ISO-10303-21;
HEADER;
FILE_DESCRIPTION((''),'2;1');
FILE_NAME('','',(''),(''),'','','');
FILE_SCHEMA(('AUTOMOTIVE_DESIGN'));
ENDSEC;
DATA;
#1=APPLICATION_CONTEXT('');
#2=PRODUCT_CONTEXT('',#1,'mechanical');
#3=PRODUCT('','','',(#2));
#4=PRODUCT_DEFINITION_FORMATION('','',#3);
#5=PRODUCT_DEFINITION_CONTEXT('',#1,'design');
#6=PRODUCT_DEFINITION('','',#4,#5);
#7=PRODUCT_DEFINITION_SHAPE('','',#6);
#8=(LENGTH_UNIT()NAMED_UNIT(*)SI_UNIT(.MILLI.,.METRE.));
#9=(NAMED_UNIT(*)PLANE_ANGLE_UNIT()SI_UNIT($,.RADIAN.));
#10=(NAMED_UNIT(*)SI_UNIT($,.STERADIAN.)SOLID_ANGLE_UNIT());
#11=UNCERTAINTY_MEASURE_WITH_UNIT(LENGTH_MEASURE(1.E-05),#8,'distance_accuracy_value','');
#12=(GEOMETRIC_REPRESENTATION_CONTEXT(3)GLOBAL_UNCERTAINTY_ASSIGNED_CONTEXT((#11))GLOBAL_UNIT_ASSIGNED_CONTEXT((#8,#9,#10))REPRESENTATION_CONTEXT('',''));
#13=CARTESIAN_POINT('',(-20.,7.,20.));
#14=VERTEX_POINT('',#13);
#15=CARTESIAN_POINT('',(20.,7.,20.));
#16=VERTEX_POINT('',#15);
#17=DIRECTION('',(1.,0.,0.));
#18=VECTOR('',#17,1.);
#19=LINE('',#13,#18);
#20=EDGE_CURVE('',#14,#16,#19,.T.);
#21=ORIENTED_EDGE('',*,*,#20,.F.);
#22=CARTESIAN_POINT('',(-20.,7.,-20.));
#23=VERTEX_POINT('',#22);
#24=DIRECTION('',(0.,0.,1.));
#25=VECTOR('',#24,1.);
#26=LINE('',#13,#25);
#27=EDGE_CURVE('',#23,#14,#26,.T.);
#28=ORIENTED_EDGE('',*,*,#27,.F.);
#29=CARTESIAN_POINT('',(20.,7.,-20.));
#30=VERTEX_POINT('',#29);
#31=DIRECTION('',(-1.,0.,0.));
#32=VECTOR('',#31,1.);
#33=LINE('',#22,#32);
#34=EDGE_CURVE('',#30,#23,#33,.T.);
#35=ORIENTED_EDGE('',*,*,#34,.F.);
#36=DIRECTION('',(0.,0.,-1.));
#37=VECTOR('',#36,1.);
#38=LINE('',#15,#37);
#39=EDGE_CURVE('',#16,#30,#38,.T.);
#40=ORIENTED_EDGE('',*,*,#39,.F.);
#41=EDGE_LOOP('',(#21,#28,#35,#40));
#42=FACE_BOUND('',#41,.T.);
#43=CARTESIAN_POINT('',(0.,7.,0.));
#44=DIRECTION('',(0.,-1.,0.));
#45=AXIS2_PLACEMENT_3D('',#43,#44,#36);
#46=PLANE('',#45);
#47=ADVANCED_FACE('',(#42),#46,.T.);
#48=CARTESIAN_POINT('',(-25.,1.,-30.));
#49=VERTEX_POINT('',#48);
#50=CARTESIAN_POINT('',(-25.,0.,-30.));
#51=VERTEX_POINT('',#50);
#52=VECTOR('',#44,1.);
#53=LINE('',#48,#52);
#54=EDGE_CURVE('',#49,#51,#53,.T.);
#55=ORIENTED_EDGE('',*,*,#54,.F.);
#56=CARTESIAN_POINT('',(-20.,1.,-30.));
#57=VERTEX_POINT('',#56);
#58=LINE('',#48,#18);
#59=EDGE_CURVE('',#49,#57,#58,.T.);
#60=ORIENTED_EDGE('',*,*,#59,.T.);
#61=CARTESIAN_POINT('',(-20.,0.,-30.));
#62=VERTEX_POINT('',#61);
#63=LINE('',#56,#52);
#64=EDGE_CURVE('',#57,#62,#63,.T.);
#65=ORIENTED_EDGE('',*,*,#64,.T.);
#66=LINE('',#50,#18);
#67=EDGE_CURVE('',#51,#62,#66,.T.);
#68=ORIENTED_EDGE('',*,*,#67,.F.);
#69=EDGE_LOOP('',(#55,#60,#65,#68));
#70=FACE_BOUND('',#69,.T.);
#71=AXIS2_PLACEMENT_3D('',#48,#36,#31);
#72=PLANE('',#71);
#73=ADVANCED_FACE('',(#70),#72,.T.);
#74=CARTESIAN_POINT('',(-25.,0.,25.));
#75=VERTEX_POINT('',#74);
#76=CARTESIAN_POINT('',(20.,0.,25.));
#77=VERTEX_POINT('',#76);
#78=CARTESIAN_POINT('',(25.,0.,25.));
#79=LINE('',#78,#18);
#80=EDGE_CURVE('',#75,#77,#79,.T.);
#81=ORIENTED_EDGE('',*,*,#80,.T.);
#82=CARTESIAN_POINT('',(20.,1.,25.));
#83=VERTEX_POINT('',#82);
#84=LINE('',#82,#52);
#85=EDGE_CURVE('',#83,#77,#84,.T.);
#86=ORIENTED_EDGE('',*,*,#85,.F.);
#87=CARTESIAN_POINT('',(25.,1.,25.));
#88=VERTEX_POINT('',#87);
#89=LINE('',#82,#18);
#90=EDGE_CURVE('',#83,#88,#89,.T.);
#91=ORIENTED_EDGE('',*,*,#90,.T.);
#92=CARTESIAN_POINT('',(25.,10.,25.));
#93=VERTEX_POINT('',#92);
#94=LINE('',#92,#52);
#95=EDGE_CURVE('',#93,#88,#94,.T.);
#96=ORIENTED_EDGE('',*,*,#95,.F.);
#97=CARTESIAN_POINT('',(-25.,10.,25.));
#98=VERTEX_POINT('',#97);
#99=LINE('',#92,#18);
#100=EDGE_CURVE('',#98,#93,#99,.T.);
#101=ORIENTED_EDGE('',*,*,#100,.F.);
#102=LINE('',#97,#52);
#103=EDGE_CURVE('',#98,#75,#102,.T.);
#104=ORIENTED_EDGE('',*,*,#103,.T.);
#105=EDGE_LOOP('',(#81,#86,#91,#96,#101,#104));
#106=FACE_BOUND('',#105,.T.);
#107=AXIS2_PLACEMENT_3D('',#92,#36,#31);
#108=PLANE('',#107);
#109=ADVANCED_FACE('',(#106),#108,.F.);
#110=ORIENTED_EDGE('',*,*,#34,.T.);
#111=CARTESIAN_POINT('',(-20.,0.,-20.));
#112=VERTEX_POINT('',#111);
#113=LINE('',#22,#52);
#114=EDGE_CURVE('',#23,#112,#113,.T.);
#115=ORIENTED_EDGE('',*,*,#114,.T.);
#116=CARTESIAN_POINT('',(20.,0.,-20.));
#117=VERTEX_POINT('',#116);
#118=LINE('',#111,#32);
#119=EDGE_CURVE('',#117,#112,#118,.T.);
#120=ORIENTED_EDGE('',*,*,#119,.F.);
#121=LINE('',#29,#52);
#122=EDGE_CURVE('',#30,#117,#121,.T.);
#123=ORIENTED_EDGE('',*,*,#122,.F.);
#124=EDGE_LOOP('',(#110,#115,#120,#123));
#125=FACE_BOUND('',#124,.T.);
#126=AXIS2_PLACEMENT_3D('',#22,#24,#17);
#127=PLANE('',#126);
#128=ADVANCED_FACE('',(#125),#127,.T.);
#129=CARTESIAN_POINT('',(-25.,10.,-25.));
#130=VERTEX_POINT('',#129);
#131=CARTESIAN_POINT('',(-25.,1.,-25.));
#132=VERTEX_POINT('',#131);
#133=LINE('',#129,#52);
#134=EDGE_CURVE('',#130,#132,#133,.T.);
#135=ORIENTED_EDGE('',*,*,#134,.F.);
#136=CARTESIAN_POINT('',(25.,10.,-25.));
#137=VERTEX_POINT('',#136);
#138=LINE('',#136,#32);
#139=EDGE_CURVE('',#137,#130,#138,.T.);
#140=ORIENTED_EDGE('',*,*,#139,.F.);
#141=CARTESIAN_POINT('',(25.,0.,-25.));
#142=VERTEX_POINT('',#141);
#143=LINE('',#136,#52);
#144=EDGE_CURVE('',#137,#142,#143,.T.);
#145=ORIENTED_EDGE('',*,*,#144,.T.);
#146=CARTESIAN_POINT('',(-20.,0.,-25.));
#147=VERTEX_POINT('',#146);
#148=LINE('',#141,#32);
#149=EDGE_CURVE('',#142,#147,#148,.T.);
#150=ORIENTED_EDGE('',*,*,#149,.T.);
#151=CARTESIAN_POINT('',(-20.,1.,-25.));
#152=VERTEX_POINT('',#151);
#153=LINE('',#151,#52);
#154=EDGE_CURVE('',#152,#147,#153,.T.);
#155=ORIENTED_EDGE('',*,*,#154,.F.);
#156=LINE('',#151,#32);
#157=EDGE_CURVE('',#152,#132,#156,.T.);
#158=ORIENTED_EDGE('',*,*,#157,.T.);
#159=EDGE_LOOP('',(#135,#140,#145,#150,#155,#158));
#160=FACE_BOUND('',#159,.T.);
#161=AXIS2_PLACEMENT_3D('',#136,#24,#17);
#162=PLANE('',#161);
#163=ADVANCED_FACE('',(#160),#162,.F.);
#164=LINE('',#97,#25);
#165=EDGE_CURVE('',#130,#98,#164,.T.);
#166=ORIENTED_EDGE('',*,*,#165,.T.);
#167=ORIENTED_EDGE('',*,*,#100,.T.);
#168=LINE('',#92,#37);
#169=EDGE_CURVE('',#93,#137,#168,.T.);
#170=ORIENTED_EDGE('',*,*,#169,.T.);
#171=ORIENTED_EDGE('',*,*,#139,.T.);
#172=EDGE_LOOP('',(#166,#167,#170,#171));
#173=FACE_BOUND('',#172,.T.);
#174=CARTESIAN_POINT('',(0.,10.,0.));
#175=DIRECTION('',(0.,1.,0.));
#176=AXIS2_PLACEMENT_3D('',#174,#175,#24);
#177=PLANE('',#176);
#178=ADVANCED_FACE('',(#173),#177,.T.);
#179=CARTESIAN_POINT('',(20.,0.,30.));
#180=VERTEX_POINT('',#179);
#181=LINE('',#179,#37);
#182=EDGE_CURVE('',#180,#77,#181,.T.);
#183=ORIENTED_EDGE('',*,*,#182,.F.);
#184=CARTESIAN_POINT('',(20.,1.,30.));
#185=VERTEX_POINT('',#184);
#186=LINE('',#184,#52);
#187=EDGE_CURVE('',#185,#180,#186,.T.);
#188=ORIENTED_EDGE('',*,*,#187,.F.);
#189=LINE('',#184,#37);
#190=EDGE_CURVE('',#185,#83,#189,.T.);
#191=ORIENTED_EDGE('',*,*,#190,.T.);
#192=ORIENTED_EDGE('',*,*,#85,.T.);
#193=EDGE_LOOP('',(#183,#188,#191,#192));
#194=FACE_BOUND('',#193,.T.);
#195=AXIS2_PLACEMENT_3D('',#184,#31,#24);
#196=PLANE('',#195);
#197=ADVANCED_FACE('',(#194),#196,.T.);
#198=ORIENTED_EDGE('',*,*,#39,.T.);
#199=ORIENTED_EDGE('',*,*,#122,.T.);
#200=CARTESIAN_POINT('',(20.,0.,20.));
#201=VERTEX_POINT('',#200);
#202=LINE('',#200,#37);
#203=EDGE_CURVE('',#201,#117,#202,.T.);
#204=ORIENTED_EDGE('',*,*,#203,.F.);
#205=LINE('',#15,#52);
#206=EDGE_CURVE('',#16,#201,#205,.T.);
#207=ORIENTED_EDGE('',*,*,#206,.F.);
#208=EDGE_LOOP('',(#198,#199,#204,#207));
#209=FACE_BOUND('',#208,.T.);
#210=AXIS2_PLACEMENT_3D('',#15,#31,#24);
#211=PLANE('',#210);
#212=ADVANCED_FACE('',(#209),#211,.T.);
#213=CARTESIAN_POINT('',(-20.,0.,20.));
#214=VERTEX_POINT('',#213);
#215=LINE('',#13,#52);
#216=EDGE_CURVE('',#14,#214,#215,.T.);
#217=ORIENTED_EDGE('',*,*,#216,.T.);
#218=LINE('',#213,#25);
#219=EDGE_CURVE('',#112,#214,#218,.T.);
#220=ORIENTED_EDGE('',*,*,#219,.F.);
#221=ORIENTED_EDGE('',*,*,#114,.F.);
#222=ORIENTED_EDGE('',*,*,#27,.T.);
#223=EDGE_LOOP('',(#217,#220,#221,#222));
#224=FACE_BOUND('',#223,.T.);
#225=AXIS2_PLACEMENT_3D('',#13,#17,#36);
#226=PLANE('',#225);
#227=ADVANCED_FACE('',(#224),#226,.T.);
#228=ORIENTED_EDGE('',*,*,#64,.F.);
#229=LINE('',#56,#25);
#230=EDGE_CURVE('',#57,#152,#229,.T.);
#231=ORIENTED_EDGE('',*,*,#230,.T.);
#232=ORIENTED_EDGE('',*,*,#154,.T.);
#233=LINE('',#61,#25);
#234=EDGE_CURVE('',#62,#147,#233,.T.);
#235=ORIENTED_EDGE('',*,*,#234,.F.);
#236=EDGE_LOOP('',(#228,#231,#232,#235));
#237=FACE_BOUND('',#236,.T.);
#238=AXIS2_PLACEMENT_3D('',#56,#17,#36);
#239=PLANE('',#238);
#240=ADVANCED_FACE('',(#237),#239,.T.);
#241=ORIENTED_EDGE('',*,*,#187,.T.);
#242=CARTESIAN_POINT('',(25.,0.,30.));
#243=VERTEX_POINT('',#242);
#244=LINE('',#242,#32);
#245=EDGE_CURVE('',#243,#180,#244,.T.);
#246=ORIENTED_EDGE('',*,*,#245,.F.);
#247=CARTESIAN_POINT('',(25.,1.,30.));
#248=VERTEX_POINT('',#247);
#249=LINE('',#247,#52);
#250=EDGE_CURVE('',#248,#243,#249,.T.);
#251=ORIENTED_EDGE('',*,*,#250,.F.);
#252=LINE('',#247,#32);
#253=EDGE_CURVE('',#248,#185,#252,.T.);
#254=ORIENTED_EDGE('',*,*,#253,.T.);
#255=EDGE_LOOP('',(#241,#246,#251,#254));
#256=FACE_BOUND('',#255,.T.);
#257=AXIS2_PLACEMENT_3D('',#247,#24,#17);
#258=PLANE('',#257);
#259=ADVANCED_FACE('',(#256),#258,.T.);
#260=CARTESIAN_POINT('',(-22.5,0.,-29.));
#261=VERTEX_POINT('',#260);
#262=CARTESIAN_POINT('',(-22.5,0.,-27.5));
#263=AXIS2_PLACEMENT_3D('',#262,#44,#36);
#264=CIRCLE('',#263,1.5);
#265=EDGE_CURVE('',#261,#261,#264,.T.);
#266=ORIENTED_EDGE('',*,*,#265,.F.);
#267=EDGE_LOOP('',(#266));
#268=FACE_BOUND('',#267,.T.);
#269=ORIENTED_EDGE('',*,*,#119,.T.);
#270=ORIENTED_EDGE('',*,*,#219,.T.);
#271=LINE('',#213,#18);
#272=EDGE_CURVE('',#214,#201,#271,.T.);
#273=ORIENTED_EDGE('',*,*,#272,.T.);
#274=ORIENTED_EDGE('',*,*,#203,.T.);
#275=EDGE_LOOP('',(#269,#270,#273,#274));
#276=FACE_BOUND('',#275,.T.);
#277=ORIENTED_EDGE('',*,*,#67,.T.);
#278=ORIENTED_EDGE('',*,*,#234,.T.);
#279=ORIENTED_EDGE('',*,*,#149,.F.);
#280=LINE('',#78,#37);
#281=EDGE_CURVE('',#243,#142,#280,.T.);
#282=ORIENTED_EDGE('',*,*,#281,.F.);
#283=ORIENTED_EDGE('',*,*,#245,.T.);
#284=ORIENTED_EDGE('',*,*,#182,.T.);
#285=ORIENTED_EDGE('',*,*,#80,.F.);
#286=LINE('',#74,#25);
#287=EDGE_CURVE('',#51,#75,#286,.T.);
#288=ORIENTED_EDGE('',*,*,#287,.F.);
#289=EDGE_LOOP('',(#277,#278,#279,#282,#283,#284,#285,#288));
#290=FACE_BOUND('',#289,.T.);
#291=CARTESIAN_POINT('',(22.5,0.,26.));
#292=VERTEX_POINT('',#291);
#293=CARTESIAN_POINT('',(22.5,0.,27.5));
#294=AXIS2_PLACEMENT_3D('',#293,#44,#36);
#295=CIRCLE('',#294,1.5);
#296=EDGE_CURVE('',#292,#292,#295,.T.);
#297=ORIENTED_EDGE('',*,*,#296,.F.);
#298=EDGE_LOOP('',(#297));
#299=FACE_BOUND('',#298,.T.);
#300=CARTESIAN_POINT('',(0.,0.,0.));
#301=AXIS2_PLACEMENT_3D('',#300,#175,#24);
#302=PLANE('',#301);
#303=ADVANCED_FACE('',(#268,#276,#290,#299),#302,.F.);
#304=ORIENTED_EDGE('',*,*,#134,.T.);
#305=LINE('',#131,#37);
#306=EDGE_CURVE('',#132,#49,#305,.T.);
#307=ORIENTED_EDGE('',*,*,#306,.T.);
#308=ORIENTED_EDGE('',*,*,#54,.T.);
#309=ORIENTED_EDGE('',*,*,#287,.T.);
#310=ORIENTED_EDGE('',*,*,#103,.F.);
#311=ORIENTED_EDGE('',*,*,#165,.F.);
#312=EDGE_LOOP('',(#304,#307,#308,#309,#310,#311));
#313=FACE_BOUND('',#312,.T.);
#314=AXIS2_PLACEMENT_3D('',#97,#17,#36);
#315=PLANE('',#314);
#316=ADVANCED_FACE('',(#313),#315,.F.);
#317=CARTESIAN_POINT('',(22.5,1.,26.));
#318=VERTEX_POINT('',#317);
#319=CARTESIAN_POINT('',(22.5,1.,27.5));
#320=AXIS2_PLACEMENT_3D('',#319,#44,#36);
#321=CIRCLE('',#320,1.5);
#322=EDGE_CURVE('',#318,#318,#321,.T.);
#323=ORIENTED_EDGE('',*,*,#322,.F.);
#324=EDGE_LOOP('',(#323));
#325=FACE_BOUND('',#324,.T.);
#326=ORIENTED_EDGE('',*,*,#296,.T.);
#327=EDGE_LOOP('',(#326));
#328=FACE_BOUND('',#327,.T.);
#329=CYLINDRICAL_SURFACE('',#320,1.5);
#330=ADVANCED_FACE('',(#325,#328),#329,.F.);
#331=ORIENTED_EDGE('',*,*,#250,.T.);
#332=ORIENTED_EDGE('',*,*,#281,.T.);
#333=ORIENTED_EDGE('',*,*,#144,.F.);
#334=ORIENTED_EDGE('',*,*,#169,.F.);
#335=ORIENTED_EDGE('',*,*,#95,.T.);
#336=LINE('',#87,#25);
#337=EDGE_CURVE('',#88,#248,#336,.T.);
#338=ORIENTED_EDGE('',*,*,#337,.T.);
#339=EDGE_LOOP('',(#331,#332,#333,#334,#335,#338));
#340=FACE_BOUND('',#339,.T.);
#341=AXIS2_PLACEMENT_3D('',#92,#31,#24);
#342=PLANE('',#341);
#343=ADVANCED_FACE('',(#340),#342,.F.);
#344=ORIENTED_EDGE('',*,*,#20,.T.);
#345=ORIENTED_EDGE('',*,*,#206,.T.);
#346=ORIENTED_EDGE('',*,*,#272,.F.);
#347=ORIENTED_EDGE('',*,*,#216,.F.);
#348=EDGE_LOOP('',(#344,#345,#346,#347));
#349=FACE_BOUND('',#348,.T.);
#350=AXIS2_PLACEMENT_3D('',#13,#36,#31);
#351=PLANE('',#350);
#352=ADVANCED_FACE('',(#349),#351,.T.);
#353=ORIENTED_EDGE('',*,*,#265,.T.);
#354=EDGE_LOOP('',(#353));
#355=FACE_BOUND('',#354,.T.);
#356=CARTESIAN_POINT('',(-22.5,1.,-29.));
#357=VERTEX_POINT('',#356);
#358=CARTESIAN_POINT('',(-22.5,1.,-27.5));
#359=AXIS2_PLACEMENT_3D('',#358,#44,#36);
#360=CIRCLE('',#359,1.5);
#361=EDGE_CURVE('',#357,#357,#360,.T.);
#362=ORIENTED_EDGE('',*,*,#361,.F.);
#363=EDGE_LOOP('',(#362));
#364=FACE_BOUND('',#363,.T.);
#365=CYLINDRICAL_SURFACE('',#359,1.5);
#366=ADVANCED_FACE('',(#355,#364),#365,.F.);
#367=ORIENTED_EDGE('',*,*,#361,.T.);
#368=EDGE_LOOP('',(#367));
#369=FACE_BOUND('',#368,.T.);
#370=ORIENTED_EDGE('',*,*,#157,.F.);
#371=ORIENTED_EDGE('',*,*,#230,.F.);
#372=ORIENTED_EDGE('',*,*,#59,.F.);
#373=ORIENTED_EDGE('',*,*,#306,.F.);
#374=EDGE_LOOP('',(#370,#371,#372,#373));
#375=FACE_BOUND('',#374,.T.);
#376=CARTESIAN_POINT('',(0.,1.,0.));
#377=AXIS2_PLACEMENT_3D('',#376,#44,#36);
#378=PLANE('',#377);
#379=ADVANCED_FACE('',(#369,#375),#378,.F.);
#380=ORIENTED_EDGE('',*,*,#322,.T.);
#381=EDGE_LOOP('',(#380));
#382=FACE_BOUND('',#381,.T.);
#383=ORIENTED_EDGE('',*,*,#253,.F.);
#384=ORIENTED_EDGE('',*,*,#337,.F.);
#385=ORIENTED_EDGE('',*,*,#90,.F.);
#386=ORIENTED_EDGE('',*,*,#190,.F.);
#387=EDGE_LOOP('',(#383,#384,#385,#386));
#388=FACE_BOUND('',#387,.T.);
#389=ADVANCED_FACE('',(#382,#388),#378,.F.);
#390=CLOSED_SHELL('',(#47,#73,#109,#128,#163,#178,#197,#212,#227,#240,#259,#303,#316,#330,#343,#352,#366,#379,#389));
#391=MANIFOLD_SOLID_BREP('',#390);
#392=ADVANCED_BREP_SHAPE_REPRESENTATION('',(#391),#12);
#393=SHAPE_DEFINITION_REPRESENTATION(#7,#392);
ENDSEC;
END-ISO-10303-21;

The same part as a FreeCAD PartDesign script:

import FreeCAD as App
import Part
import Sketcher

doc = App.newDocument("Part")
params = doc.addObject("Spreadsheet::Sheet", "Params")
for row, (alias, value) in enumerate([
    ("sketch1_width", "50 mm"),
    ("pad1_length", "10 mm"),
    ("sketch2_width", "40 mm"),
    ("pocket1_length", "7 mm"),
    ("sketch3_diameter", "3 mm"),
    ("sketch3_width", "5 mm"),
    ("pad2_length", "1 mm"),
], start=1):
    params.set(f"A{row}", alias)
    params.set(f"B{row}", "=" + value)
    params.setAlias(f"B{row}", alias)

body = doc.addObject("PartDesign::Body", "Body")

sketch1 = body.newObject("Sketcher::SketchObject", "Sketch")
sketch1.AttachmentSupport = (doc.getObject("XZ_Plane"), [""])
sketch1.MapMode = "FlatFace"
sketch1.addGeometry(Part.LineSegment(App.Vector(-25, -25, 0), App.Vector(-25, 25, 0)), False)
sketch1.addGeometry(Part.LineSegment(App.Vector(-25, 25, 0), App.Vector(25, 25, 0)), False)
sketch1.addGeometry(Part.LineSegment(App.Vector(25, 25, 0), App.Vector(25, -25, 0)), False)
sketch1.addGeometry(Part.LineSegment(App.Vector(25, -25, 0), App.Vector(-25, -25, 0)), False)
sketch1.addConstraint(Sketcher.Constraint("Coincident", 0, 2, 1, 1))
sketch1.addConstraint(Sketcher.Constraint("Coincident", 1, 2, 2, 1))
sketch1.addConstraint(Sketcher.Constraint("Coincident", 2, 2, 3, 1))
sketch1.addConstraint(Sketcher.Constraint("Coincident", 3, 2, 0, 1))
sketch1.addConstraint(Sketcher.Constraint("Vertical", 0))
sketch1.addConstraint(Sketcher.Constraint("Horizontal", 1))
sketch1.addConstraint(Sketcher.Constraint("Vertical", 2))
sketch1.addConstraint(Sketcher.Constraint("Horizontal", 3))
sketch1.addConstraint(Sketcher.Constraint("Symmetric", 0, 2, 2, 2, -1, 1))
sketch1.addConstraint(Sketcher.Constraint("Equal", 3, 0))
sketch1.addConstraint(Sketcher.Constraint("DistanceX", 1, 1, 1, 2, 50.0))
sketch1.setExpression("Constraints[10]", "Params.sketch1_width")
pad1 = body.newObject("PartDesign::Pad", "Pad")
pad1.Profile = sketch1
pad1.setExpression("Length", "Params.pad1_length")
pad1.Reversed = True

sketch2 = body.newObject("Sketcher::SketchObject", "Sketch001")
sketch2.AttachmentSupport = (doc.getObject("XZ_Plane"), [""])
sketch2.MapMode = "FlatFace"
sketch2.addGeometry(Part.LineSegment(App.Vector(-20, -20, 0), App.Vector(-20, 20, 0)), False)
sketch2.addGeometry(Part.LineSegment(App.Vector(-20, 20, 0), App.Vector(20, 20, 0)), False)
sketch2.addGeometry(Part.LineSegment(App.Vector(20, 20, 0), App.Vector(20, -20, 0)), False)
sketch2.addGeometry(Part.LineSegment(App.Vector(20, -20, 0), App.Vector(-20, -20, 0)), False)
sketch2.addConstraint(Sketcher.Constraint("Coincident", 0, 2, 1, 1))
sketch2.addConstraint(Sketcher.Constraint("Coincident", 1, 2, 2, 1))
sketch2.addConstraint(Sketcher.Constraint("Coincident", 2, 2, 3, 1))
sketch2.addConstraint(Sketcher.Constraint("Coincident", 3, 2, 0, 1))
sketch2.addConstraint(Sketcher.Constraint("Vertical", 0))
sketch2.addConstraint(Sketcher.Constraint("Horizontal", 1))
sketch2.addConstraint(Sketcher.Constraint("Vertical", 2))
sketch2.addConstraint(Sketcher.Constraint("Horizontal", 3))
sketch2.addConstraint(Sketcher.Constraint("Symmetric", 0, 2, 2, 2, -1, 1))
sketch2.addConstraint(Sketcher.Constraint("Equal", 3, 0))
sketch2.addConstraint(Sketcher.Constraint("DistanceX", 1, 1, 1, 2, 40.0))
sketch2.setExpression("Constraints[10]", "Params.sketch2_width")
pocket1 = body.newObject("PartDesign::Pocket", "Pocket")
pocket1.Profile = sketch2
pocket1.setExpression("Length", "Params.pocket1_length")

sketch3 = body.newObject("Sketcher::SketchObject", "Sketch002")
sketch3.AttachmentSupport = (doc.getObject("XZ_Plane"), [""])
sketch3.MapMode = "FlatFace"
sketch3.addGeometry(Part.LineSegment(App.Vector(-25, -25, 0), App.Vector(-25, -30, 0)), False)
sketch3.addGeometry(Part.LineSegment(App.Vector(-25, -30, 0), App.Vector(-20, -30, 0)), False)
sketch3.addGeometry(Part.LineSegment(App.Vector(-20, -30, 0), App.Vector(-20, -25, 0)), False)
sketch3.addGeometry(Part.LineSegment(App.Vector(-20, -25, 0), App.Vector(-25, -25, 0)), False)
sketch3.addGeometry(Part.Circle(App.Vector(-22.5, -27.5, 0), App.Vector(0, 0, 1), 1.5), False)
sketch3.addGeometry(Part.LineSegment(App.Vector(20, 30, 0), App.Vector(20, 25, 0)), False)
sketch3.addGeometry(Part.LineSegment(App.Vector(20, 25, 0), App.Vector(25, 25, 0)), False)
sketch3.addGeometry(Part.LineSegment(App.Vector(25, 25, 0), App.Vector(25, 30, 0)), False)
sketch3.addGeometry(Part.LineSegment(App.Vector(25, 30, 0), App.Vector(20, 30, 0)), False)
sketch3.addGeometry(Part.Circle(App.Vector(22.5, 27.5, 0), App.Vector(0, 0, 1), 1.5), False)
sketch3.addConstraint(Sketcher.Constraint("Coincident", 0, 2, 1, 1))
sketch3.addConstraint(Sketcher.Constraint("Coincident", 1, 2, 2, 1))
sketch3.addConstraint(Sketcher.Constraint("Coincident", 2, 2, 3, 1))
sketch3.addConstraint(Sketcher.Constraint("Coincident", 3, 2, 0, 1))
sketch3.addConstraint(Sketcher.Constraint("Coincident", 5, 2, 6, 1))
sketch3.addConstraint(Sketcher.Constraint("Coincident", 6, 2, 7, 1))
sketch3.addConstraint(Sketcher.Constraint("Coincident", 7, 2, 8, 1))
sketch3.addConstraint(Sketcher.Constraint("Coincident", 8, 2, 5, 1))
sketch3.addConstraint(Sketcher.Constraint("Vertical", 0))
sketch3.addConstraint(Sketcher.Constraint("Horizontal", 1))
sketch3.addConstraint(Sketcher.Constraint("Vertical", 2))
sketch3.addConstraint(Sketcher.Constraint("Horizontal", 3))
sketch3.addConstraint(Sketcher.Constraint("Vertical", 5))
sketch3.addConstraint(Sketcher.Constraint("Horizontal", 6))
sketch3.addConstraint(Sketcher.Constraint("Vertical", 7))
sketch3.addConstraint(Sketcher.Constraint("Horizontal", 8))
sketch3.addConstraint(Sketcher.Constraint("Equal", 4, 9))
sketch3.addConstraint(Sketcher.Constraint("Symmetric", 4, 3, 9, 3, -1, 1))
sketch3.addConstraint(Sketcher.Constraint("Symmetric", 2, 2, 5, 2, -1, 1))
sketch3.addConstraint(Sketcher.Constraint("Symmetric", 0, 2, 7, 2, -1, 1))
sketch3.addConstraint(Sketcher.Constraint("Equal", 8, 0))
sketch3.addConstraint(Sketcher.Constraint("Diameter", 4, 3.0))
sketch3.addConstraint(Sketcher.Constraint("DistanceX", 1, 1, 1, 2, 5.0))
sketch3.addConstraint(Sketcher.Constraint("DistanceX", 0, 2, -1, 1, 25.0))
sketch3.addConstraint(Sketcher.Constraint("DistanceY", 0, 2, -1, 1, 30.0))
sketch3.addConstraint(Sketcher.Constraint("DistanceX", 4, 3, 9, 3, 45.0))
sketch3.addConstraint(Sketcher.Constraint("DistanceY", 4, 3, 9, 3, 55.0))
sketch3.setExpression("Constraints[21]", "Params.sketch3_diameter")
sketch3.setExpression("Constraints[22]", "Params.sketch3_width")
pad2 = body.newObject("PartDesign::Pad", "Pad001")
pad2.Profile = sketch3
pad2.setExpression("Length", "Params.pad2_length")
pad2.Reversed = True

doc.recompute()
